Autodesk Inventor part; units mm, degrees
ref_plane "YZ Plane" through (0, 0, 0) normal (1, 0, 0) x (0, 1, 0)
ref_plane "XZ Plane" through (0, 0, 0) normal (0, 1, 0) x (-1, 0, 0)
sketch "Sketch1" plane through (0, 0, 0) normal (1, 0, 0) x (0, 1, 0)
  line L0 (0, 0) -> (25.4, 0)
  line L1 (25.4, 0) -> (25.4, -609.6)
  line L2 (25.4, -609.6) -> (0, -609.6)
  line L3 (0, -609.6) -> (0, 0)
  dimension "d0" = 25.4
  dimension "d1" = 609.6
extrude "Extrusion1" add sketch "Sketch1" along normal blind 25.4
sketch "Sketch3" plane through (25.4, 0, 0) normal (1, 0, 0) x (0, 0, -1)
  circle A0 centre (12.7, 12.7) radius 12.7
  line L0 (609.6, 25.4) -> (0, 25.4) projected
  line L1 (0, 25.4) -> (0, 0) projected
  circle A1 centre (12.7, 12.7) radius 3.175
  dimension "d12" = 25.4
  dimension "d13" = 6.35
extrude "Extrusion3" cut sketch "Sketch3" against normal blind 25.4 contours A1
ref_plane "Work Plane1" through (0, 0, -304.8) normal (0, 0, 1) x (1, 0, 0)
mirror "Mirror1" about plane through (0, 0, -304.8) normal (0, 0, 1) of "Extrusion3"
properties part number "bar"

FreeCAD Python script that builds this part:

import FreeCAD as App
import Part
import Sketcher
Q = App.Units.Quantity


def add_polygon(sketch, points):
    """Adds a closed chain of lines whose ends are joined by coincident constraints."""
    first, n = sketch.GeometryCount, len(points)
    for a, b in zip(points, points[1:] + points[:1]):
        sketch.addGeometry(Part.LineSegment(App.Vector(*a, 0), App.Vector(*b, 0)), False)
    for i in range(n):
        sketch.addConstraint(Sketcher.Constraint("Coincident", first + i, 2, first + (i + 1) % n, 1))

doc = App.newDocument("Part")
body = doc.addObject("PartDesign::Body", "Body")

# Sketch on YZ plane
sketch1 = body.newObject("Sketcher::SketchObject", "Sketch")
sketch1.AttachmentSupport = (doc.getObject("YZ_Plane"), [""])
sketch1.MapMode = "FlatFace"
add_polygon(sketch1, [(25.4, 0), (0, 0), (0, -609.6), (25.4, -609.6)])  # lines 0-3
sketch1.addConstraint(Sketcher.Constraint("Horizontal", 0))
sketch1.addConstraint(Sketcher.Constraint("Vertical", 1))
sketch1.addConstraint(Sketcher.Constraint("Horizontal", 2))
sketch1.addConstraint(Sketcher.Constraint("Vertical", 3))
sketch1.addConstraint(Sketcher.Constraint("Coincident", 0, 2, -1, 1))
sketch1.addConstraint(Sketcher.Constraint("DistanceX", 0, 2, 0, 1, Q("1 in")))
sketch1.addConstraint(Sketcher.Constraint("DistanceY", 1, 2, 1, 1, Q("24 in")))
pad1 = body.newObject("PartDesign::Pad", "Pad")
pad1.Profile = sketch1
pad1.Length = Q("1 in")

# Sketch on YZ plane
sketch2 = body.newObject("Sketcher::SketchObject", "Sketch001")
sketch2.AttachmentSupport = (doc.getObject("YZ_Plane"), [""])
sketch2.MapMode = "FlatFace"
sketch2.AttachmentOffset = App.Placement(App.Vector(0, 0, 1 * 25.4), App.Rotation())
sketch2.addGeometry(Part.Circle(App.Vector(12.7, -12.7, 0), App.Vector(0, 0, 1), 3.175), False)
sketch2.addConstraint(Sketcher.Constraint("Diameter", 0, Q("0.25 in")))
sketch2.addConstraint(Sketcher.Constraint("DistanceX", -1, 1, 0, 3, Q("0.5 in")))
sketch2.addConstraint(Sketcher.Constraint("DistanceY", 0, 3, -1, 1, Q("0.5 in")))
pocket1 = body.newObject("PartDesign::Pocket", "Pocket")
pocket1.Profile = sketch2
pocket1.Length = Q("1 in")
doc.recompute()

datumplane = body.newObject("PartDesign::Plane", "DatumPlane")
datumplane.AttachmentSupport = (doc.getObject("XY_Plane"), [""])
datumplane.MapMode = "FlatFace"
datumplane.AttachmentOffset = App.Placement(App.Vector(0, 0, -12 * 25.4), App.Rotation())
mirrored = body.newObject("PartDesign::Mirrored", "Mirrored")
mirrored.Originals = [pocket1]
mirrored.MirrorPlane = (datumplane, [""])
body.Tip = mirrored

doc.recompute()
